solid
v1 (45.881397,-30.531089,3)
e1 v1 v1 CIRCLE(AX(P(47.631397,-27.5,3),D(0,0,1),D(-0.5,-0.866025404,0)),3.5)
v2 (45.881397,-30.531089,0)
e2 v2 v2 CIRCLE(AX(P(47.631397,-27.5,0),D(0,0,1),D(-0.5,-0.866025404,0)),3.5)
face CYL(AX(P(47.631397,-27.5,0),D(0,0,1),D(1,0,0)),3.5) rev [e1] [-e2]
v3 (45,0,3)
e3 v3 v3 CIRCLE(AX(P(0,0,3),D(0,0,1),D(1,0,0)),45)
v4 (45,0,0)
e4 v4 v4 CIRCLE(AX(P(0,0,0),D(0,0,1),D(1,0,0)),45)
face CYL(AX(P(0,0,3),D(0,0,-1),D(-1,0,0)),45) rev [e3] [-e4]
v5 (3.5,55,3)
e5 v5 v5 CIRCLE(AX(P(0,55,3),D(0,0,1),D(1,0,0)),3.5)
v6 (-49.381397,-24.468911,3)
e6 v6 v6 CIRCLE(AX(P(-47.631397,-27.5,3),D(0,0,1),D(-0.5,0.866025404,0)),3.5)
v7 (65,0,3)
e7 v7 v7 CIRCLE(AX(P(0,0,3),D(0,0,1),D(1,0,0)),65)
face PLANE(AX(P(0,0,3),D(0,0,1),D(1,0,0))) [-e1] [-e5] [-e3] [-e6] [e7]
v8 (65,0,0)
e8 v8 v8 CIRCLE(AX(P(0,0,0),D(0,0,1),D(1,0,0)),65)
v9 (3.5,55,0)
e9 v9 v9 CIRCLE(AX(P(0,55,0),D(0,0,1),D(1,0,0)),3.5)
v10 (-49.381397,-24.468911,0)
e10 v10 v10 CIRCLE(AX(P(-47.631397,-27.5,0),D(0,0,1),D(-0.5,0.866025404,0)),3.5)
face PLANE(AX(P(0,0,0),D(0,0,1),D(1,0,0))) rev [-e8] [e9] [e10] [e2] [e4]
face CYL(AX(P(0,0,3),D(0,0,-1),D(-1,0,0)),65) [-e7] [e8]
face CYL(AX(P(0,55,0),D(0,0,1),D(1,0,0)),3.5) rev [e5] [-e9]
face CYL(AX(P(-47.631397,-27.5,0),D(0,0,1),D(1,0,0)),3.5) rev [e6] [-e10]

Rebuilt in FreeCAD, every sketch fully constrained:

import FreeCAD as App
import Part
import Sketcher

V = App.Vector

doc = App.newDocument("Part")
params = doc.addObject("Spreadsheet::Sheet", "Params")
for row, (alias, value) in enumerate([
    ("sketch1_diameter", "130 mm"),
    ("sketch1_diameter2", "90 mm"),
    ("pad1_length", "3 mm"),
    ("sketch2_diameter", "7 mm"),
    ("pocket1_length", "3 mm"),
], start=1):
    params.set(f"A{row}", alias)
    params.set(f"B{row}", "=" + value)
    params.setAlias(f"B{row}", alias)

body = doc.addObject("PartDesign::Body", "Body")

sketch1 = doc.addObject("Sketcher::SketchObject", "Sketch")
body.addObject(sketch1)
sketch1.AttachmentSupport = (doc.XY_Plane, [""])
sketch1.MapMode = "FlatFace"
sketch1.addGeometry([
    Part.Circle(V(0, 0, 0), V(0, 0, 1), 65),
    Part.Circle(V(0, 0, 0), V(0, 0, 1), 45),
], False)
sketch1.addConstraint([
    Sketcher.Constraint("Coincident", 0, 3, -1, 1),
    Sketcher.Constraint("Coincident", 1, 3, -1, 1),
    Sketcher.Constraint("Diameter", 0, 130.0),
    Sketcher.Constraint("Diameter", 1, 90.0),
])
sketch1.setExpression("Constraints[2]", "Params.sketch1_diameter")
sketch1.setExpression("Constraints[3]", "Params.sketch1_diameter2")
pad1 = doc.addObject("PartDesign::Pad", "Pad")
body.addObject(pad1)
pad1.Profile = sketch1
pad1.setExpression("Length", "Params.pad1_length")

sketch2 = doc.addObject("Sketcher::SketchObject", "Sketch001")
body.addObject(sketch2)
sketch2.AttachmentSupport = (doc.XY_Plane, [""])
sketch2.MapMode = "FlatFace"
sketch2.AttachmentOffset = App.Placement(V(0, 0, 3), App.Rotation())
sketch2.addGeometry(Part.Circle(V(0, 55, 0), V(0, 0, 1), 3.5), False)
sketch2.addConstraint([
    Sketcher.Constraint("PointOnObject", 0, 3, -2),
    Sketcher.Constraint("Diameter", 0, 7.0),
    Sketcher.Constraint("DistanceY", -1, 1, 0, 3, 55.0),
])
sketch2.setExpression("Constraints[1]", "Params.sketch2_diameter")
pocket1 = doc.addObject("PartDesign::Pocket", "Pocket")
body.addObject(pocket1)
pocket1.Profile = sketch2
pocket1.setExpression("Length", "Params.pocket1_length")
doc.recompute()

polarpattern = doc.addObject("PartDesign::PolarPattern", "PolarPattern")
body.addObject(polarpattern)
polarpattern.Originals = [pocket1]
polarpattern.Axis = (doc.Z_Axis, [""])
polarpattern.Angle = 360
polarpattern.Occurrences = 3
body.Tip = polarpattern

doc.recompute()
